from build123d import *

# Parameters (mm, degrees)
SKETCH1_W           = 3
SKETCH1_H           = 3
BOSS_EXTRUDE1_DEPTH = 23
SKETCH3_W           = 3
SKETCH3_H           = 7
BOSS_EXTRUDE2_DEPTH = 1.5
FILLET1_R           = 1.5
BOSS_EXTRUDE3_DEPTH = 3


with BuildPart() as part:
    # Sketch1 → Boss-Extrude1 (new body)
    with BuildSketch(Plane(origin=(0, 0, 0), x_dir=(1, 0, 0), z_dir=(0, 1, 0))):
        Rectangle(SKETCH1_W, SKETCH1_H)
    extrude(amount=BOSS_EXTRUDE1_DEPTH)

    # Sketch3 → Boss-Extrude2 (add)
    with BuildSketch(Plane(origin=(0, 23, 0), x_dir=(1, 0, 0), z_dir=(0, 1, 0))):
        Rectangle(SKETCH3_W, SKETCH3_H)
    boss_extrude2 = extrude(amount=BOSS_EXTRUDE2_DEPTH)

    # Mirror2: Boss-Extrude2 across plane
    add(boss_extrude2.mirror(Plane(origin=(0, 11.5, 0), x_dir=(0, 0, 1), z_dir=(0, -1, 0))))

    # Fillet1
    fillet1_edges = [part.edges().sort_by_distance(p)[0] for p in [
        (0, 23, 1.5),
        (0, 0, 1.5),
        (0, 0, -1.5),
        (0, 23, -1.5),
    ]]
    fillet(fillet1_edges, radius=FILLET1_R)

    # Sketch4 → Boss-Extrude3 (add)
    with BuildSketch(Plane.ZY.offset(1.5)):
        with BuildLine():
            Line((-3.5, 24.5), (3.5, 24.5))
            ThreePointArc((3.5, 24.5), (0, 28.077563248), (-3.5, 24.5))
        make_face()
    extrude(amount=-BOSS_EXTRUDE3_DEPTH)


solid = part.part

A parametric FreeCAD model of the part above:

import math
import FreeCAD as App
import Part
import Sketcher


def edges_at(feature, points):
    """Names of the edges that pass closest to the given points."""
    edges = feature.Shape.Edges
    near = lambda p: min(range(len(edges)), key=lambda i: edges[i].distToShape(Part.Vertex(*p))[0])
    return sorted({f"Edge{near(p) + 1}" for p in points})


def add_polygon(sketch, points):
    """Adds a closed chain of lines whose ends are joined by coincident constraints."""
    first, n = sketch.GeometryCount, len(points)
    for a, b in zip(points, points[1:] + points[:1]):
        sketch.addGeometry(Part.LineSegment(App.Vector(*a, 0), App.Vector(*b, 0)), False)
    for i in range(n):
        sketch.addConstraint(Sketcher.Constraint("Coincident", first + i, 2, first + (i + 1) % n, 1))

doc = App.newDocument("Part")
body = doc.addObject("PartDesign::Body", "Body")

# Sketch on XZ plane
sketch1 = body.newObject("Sketcher::SketchObject", "Sketch")
sketch1.AttachmentSupport = (doc.getObject("XZ_Plane"), [""])
sketch1.MapMode = "FlatFace"
add_polygon(sketch1, [(-1.5, -1.5), (-1.5, 1.5), (1.5, 1.5), (1.5, -1.5)])  # lines 0-3
sketch1.addConstraint([
    Sketcher.Constraint("Vertical", 0),
    Sketcher.Constraint("Horizontal", 1),
    Sketcher.Constraint("Vertical", 2),
    Sketcher.Constraint("Horizontal", 3),
    Sketcher.Constraint("Symmetric", 0, 2, 2, 2, -1, 1),
    Sketcher.Constraint("Equal", 3, 0),
    Sketcher.Constraint("DistanceX", 1, 1, 1, 2, 3.0),
])
pad1 = body.newObject("PartDesign::Pad", "Pad")
pad1.Profile = sketch1
pad1.Length = 23
pad1.Reversed = True

# Sketch on XZ plane
sketch2 = body.newObject("Sketcher::SketchObject", "Sketch001")
sketch2.AttachmentSupport = (doc.getObject("XZ_Plane"), [""])
sketch2.MapMode = "FlatFace"
sketch2.AttachmentOffset = App.Placement(App.Vector(0, 0, -23), App.Rotation())
add_polygon(sketch2, [(-1.5, -3.5), (-1.5, 3.5), (1.5, 3.5), (1.5, -3.5)])  # lines 0-3
sketch2.addConstraint([
    Sketcher.Constraint("Vertical", 0),
    Sketcher.Constraint("Horizontal", 1),
    Sketcher.Constraint("Vertical", 2),
    Sketcher.Constraint("Horizontal", 3),
    Sketcher.Constraint("Symmetric", 0, 2, 2, 2, -1, 1),
    Sketcher.Constraint("DistanceX", 1, 1, 1, 2, 3.0),
    Sketcher.Constraint("DistanceY", 0, 1, 0, 2, 7.0),
])
pad2 = body.newObject("PartDesign::Pad", "Pad001")
pad2.Profile = sketch2
pad2.Length = 1.5
pad2.Reversed = True
doc.recompute()

datumplane = body.newObject("PartDesign::Plane", "DatumPlane")
datumplane.AttachmentSupport = (doc.getObject("XZ_Plane"), [""])
datumplane.MapMode = "FlatFace"
datumplane.AttachmentOffset = App.Placement(App.Vector(0, 0, -11.5), App.Rotation())
mirrored = body.newObject("PartDesign::Mirrored", "Mirrored")
mirrored.Originals = [pad2]
mirrored.MirrorPlane = (datumplane, [""])
body.Tip = mirrored
doc.recompute()

fillet = body.newObject("PartDesign::Fillet", "Fillet")
fillet.Base = (mirrored, edges_at(mirrored, [
    (0, 23, 1.5),
    (0, 0, 1.5),
    (0, 0, -1.5),
    (0, 23, -1.5),
]))
fillet.Radius = 1.5

# Sketch on YZ plane
sketch3 = body.newObject("Sketcher::SketchObject", "Sketch002")
sketch3.AttachmentSupport = (doc.getObject("YZ_Plane"), [""])
sketch3.MapMode = "FlatFace"
sketch3.AttachmentOffset = App.Placement(App.Vector(0, 0, -1.5), App.Rotation())
sketch3.addGeometry([
    Part.LineSegment(App.Vector(24.5, -3.5, 0), App.Vector(24.5, 3.5, 0)),
    Part.ArcOfCircle(Part.Circle(App.Vector(24.6, 0, 0), App.Vector(0, 0, 1), 3.5), math.radians(-91), math.radians(91)),
], False)
sketch3.addConstraint([
    Sketcher.Constraint("Coincident", 0, 1, 1, 1),
    Sketcher.Constraint("Coincident", 1, 2, 0, 2),
    Sketcher.Constraint("Vertical", 0),
    Sketcher.Constraint("PointOnObject", 1, 3, -1),
    Sketcher.Constraint("DistanceY", 0, 1, 0, 2, 7.0),
    Sketcher.Constraint("DistanceX", -1, 1, 0, 1, 24.5),
    Sketcher.Constraint("Radius", 1, 3.500841),
])
pad3 = body.newObject("PartDesign::Pad", "Pad002")
pad3.Profile = sketch3
pad3.Length = 3

doc.recompute()
